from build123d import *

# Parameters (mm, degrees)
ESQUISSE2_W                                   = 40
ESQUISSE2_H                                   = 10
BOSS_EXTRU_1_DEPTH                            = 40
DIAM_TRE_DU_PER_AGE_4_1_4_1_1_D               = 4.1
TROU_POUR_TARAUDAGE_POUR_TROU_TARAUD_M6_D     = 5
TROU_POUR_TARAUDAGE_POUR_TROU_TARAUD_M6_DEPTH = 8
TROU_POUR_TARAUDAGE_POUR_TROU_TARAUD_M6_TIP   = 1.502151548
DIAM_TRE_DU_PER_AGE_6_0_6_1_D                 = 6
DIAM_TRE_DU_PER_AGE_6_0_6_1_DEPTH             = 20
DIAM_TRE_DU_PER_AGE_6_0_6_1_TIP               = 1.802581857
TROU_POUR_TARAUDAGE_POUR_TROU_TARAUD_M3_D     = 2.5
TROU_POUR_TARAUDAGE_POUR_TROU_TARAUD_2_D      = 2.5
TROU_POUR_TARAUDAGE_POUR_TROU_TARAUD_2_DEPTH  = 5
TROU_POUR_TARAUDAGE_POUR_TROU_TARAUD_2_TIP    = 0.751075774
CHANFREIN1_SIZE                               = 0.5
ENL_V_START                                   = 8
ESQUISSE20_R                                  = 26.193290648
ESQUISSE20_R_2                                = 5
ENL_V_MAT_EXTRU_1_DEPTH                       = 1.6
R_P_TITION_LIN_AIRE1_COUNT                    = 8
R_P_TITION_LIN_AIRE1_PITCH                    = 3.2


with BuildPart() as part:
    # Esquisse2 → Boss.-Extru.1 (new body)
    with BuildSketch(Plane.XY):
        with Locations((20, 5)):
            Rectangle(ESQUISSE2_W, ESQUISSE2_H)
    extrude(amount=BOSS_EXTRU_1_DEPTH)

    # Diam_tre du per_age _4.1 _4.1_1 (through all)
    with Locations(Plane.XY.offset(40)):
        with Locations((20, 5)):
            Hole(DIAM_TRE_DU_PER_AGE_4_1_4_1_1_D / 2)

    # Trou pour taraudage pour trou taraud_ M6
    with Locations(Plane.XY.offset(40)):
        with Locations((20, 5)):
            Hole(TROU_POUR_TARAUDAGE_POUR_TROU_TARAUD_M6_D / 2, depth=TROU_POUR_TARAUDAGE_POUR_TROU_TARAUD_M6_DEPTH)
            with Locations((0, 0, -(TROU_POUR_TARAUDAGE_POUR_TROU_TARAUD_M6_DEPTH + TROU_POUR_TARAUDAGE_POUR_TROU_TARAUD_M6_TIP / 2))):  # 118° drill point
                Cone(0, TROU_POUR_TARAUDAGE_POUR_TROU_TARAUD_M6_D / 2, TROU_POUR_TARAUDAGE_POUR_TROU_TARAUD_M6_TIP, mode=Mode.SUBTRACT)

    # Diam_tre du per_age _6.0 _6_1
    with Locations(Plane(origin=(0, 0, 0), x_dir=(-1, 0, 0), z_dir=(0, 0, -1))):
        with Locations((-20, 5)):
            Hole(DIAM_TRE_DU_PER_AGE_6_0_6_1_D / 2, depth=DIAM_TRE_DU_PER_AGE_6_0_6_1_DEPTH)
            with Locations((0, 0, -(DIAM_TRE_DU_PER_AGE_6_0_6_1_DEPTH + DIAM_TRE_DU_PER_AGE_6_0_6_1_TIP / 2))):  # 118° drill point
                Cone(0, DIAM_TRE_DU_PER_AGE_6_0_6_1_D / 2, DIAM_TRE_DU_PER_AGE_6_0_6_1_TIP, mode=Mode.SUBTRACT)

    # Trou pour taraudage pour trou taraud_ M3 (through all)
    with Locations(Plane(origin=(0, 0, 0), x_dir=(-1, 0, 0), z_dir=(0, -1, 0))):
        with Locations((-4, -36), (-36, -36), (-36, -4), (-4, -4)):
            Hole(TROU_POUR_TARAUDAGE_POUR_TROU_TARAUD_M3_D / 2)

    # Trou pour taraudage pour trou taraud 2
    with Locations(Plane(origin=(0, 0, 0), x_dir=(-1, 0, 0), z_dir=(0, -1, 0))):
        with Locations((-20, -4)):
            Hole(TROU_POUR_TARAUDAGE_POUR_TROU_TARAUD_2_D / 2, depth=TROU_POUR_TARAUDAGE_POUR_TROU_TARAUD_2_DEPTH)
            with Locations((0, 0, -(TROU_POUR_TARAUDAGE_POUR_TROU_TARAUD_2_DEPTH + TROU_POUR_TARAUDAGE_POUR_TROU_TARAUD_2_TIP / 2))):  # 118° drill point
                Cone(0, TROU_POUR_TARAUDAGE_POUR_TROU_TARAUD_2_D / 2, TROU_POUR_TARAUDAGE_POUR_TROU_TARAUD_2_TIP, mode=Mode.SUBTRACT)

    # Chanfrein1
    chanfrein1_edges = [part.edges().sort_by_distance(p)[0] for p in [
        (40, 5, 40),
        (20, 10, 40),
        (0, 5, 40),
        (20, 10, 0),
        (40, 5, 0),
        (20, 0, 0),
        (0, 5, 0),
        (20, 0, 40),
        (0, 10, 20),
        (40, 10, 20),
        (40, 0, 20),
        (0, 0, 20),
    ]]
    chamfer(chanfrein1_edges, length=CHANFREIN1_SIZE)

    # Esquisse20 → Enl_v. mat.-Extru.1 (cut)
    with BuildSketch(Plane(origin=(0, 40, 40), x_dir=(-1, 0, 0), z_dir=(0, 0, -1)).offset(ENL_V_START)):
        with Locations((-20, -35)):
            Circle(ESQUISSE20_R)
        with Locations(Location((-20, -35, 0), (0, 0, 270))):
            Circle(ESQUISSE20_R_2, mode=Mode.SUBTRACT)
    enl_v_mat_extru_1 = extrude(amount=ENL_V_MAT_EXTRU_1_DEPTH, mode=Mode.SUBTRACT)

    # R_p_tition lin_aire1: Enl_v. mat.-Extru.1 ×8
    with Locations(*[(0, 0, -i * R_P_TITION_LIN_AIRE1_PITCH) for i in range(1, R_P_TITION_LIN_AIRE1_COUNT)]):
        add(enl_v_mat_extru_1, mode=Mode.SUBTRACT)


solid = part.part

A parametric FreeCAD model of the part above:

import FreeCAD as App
import Part
import Sketcher
from FreeCAD import Vector


def edges_at(feature, points):
    """Names of the edges that pass closest to the given points."""
    edges = feature.Shape.Edges
    near = lambda p: min(range(len(edges)), key=lambda i: edges[i].distToShape(Part.Vertex(*p))[0])
    return sorted({f"Edge{near(p) + 1}" for p in points})


def add_polygon(sketch, points):
    """Adds a closed chain of lines whose ends are joined by coincident constraints."""
    first, n = sketch.GeometryCount, len(points)
    for a, b in zip(points, points[1:] + points[:1]):
        sketch.addGeometry(Part.LineSegment(App.Vector(*a, 0), App.Vector(*b, 0)), False)
    for i in range(n):
        sketch.addConstraint(Sketcher.Constraint("Coincident", first + i, 2, first + (i + 1) % n, 1))

doc = App.newDocument("Part")
body = doc.addObject("PartDesign::Body", "Body")

# Sketch on XY plane
sketch1 = doc.addObject("Sketcher::SketchObject", "Sketch")
body.addObject(sketch1)
sketch1.AttachmentSupport = (doc.XY_Plane, [""])
sketch1.MapMode = "FlatFace"
add_polygon(sketch1, [(0, 10), (0, 0), (40, 0), (40, 10)])  # lines 0-3
sketch1.addConstraint(Sketcher.Constraint("Vertical", 0))
sketch1.addConstraint(Sketcher.Constraint("Horizontal", 1))
sketch1.addConstraint(Sketcher.Constraint("Vertical", 2))
sketch1.addConstraint(Sketcher.Constraint("Horizontal", 3))
sketch1.addConstraint(Sketcher.Constraint("Coincident", 0, 2, -1, 1))
sketch1.addConstraint(Sketcher.Constraint("DistanceX", 1, 1, 1, 2, 40.0))
sketch1.addConstraint(Sketcher.Constraint("DistanceY", 0, 2, 0, 1, 10.0))
pad1 = doc.addObject("PartDesign::Pad", "Pad")
body.addObject(pad1)
pad1.Profile = sketch1
pad1.Length = 40

# Sketch on XY plane
sketch2 = doc.addObject("Sketcher::SketchObject", "Sketch001")
body.addObject(sketch2)
sketch2.AttachmentSupport = (doc.XY_Plane, [""])
sketch2.MapMode = "FlatFace"
sketch2.AttachmentOffset = App.Placement(Vector(0, 0, 40), App.Rotation())
sketch2.addGeometry(Part.Circle(Vector(20, 5, 0), Vector(0, 0, 1), 2.05), False)
sketch2.addConstraint(Sketcher.Constraint("Diameter", 0, 4.1))
sketch2.addConstraint(Sketcher.Constraint("DistanceX", -1, 1, 0, 3, 20.0))
sketch2.addConstraint(Sketcher.Constraint("DistanceY", -1, 1, 0, 3, 5.0))
doc.recompute()
hole = doc.addObject("PartDesign::Hole", "Hole")
body.addObject(hole)
hole.Profile = sketch2
hole.ThreadType = "None"
hole.Diameter = 4.1
hole.DepthType = "ThroughAll"

# Sketch on XY plane
sketch3 = doc.addObject("Sketcher::SketchObject", "Sketch002")
body.addObject(sketch3)
sketch3.AttachmentSupport = (doc.XY_Plane, [""])
sketch3.MapMode = "FlatFace"
sketch3.AttachmentOffset = App.Placement(Vector(0, 0, 40), App.Rotation())
sketch3.addGeometry(Part.Circle(Vector(20, 5, 0), Vector(0, 0, 1), 2.5), False)
sketch3.addConstraint(Sketcher.Constraint("Diameter", 0, 5.0))
sketch3.addConstraint(Sketcher.Constraint("DistanceX", -1, 1, 0, 3, 20.0))
sketch3.addConstraint(Sketcher.Constraint("DistanceY", -1, 1, 0, 3, 5.0))
doc.recompute()
hole2 = doc.addObject("PartDesign::Hole", "Hole001")
body.addObject(hole2)
hole2.Profile = sketch3
hole2.ThreadType = "None"
hole2.Diameter = 5
hole2.DepthType = "Dimension"
hole2.Depth = 8
hole2.DrillPoint = "Angled"
hole2.DrillPointAngle = 118

# Sketch on XY plane
sketch4 = doc.addObject("Sketcher::SketchObject", "Sketch003")
body.addObject(sketch4)
sketch4.AttachmentSupport = (doc.XY_Plane, [""])
sketch4.MapMode = "FlatFace"
sketch4.addGeometry(Part.Circle(Vector(20, 5, 0), Vector(0, 0, 1), 3), False)
sketch4.addConstraint(Sketcher.Constraint("Diameter", 0, 6.0))
sketch4.addConstraint(Sketcher.Constraint("DistanceX", -1, 1, 0, 3, 20.0))
sketch4.addConstraint(Sketcher.Constraint("DistanceY", -1, 1, 0, 3, 5.0))
doc.recompute()
hole3 = doc.addObject("PartDesign::Hole", "Hole002")
body.addObject(hole3)
hole3.Profile = sketch4
hole3.ThreadType = "None"
hole3.Diameter = 6
hole3.DepthType = "Dimension"
hole3.Depth = 20
hole3.DrillPoint = "Angled"
hole3.DrillPointAngle = 118
hole3.Reversed = True

# Sketch on XZ plane
sketch5 = doc.addObject("Sketcher::SketchObject", "Sketch004")
body.addObject(sketch5)
sketch5.AttachmentSupport = (doc.XZ_Plane, [""])
sketch5.MapMode = "FlatFace"
sketch5.addGeometry(Part.Circle(Vector(4, 36, 0), Vector(0, 0, 1), 1.25), False)
sketch5.addGeometry(Part.Circle(Vector(36, 36, 0), Vector(0, 0, 1), 1.25), False)
sketch5.addGeometry(Part.Circle(Vector(36, 4, 0), Vector(0, 0, 1), 1.25), False)
sketch5.addGeometry(Part.Circle(Vector(4, 4, 0), Vector(0, 0, 1), 1.25), False)
sketch5.addConstraint(Sketcher.Constraint("Equal", 0, 1))
sketch5.addConstraint(Sketcher.Constraint("Equal", 1, 2))
sketch5.addConstraint(Sketcher.Constraint("Equal", 2, 3))
sketch5.addConstraint(Sketcher.Constraint("Horizontal", 0, 3, 1, 3))
sketch5.addConstraint(Sketcher.Constraint("Horizontal", 2, 3, 3, 3))
sketch5.addConstraint(Sketcher.Constraint("Vertical", 1, 3, 2, 3))
sketch5.addConstraint(Sketcher.Constraint("Vertical", 0, 3, 3, 3))
sketch5.addConstraint(Sketcher.Constraint("Diameter", 0, 2.5))
sketch5.addConstraint(Sketcher.Constraint("DistanceX", -1, 1, 0, 3, 4.0))
sketch5.addConstraint(Sketcher.Constraint("DistanceY", -1, 1, 0, 3, 36.0))
sketch5.addConstraint(Sketcher.Constraint("DistanceX", -1, 1, 1, 3, 36.0))
sketch5.addConstraint(Sketcher.Constraint("DistanceY", -1, 1, 2, 3, 4.0))
doc.recompute()
hole4 = doc.addObject("PartDesign::Hole", "Hole003")
body.addObject(hole4)
hole4.Profile = sketch5
hole4.ThreadType = "None"
hole4.Diameter = 2.5
hole4.DepthType = "ThroughAll"

# Sketch on XZ plane
sketch6 = doc.addObject("Sketcher::SketchObject", "Sketch005")
body.addObject(sketch6)
sketch6.AttachmentSupport = (doc.XZ_Plane, [""])
sketch6.MapMode = "FlatFace"
sketch6.addGeometry(Part.Circle(Vector(20, 4, 0), Vector(0, 0, 1), 1.25), False)
sketch6.addConstraint(Sketcher.Constraint("Diameter", 0, 2.5))
sketch6.addConstraint(Sketcher.Constraint("DistanceX", -1, 1, 0, 3, 20.0))
sketch6.addConstraint(Sketcher.Constraint("DistanceY", -1, 1, 0, 3, 4.0))
doc.recompute()
hole5 = doc.addObject("PartDesign::Hole", "Hole004")
body.addObject(hole5)
hole5.Profile = sketch6
hole5.ThreadType = "None"
hole5.Diameter = 2.5
hole5.DepthType = "Dimension"
hole5.Depth = 5
hole5.DrillPoint = "Angled"
hole5.DrillPointAngle = 118
doc.recompute()

chamfer = doc.addObject("PartDesign::Chamfer", "Chamfer")
body.addObject(chamfer)
chamfer.Base = (hole5, edges_at(hole5, [
    (40, 5, 40),
    (20, 10, 40),
    (0, 5, 40),
    (20, 10, 0),
    (40, 5, 0),
    (20, 0, 0),
    (0, 5, 0),
    (20, 0, 40),
    (0, 10, 20),
    (40, 10, 20),
    (40, 0, 20),
    (0, 0, 20),
]))
chamfer.Size = 0.5

# Sketch on XY plane
sketch7 = doc.addObject("Sketcher::SketchObject", "Sketch006")
body.addObject(sketch7)
sketch7.AttachmentSupport = (doc.XY_Plane, [""])
sketch7.MapMode = "FlatFace"
sketch7.AttachmentOffset = App.Placement(Vector(0, 0, 32), App.Rotation())
sketch7.addGeometry(Part.Circle(Vector(20, 5, 0), Vector(0, 0, 1), 26.193291), False)
sketch7.addGeometry(Part.Circle(Vector(20, 5, 0), Vector(0, 0, 1), 5), False)
sketch7.addConstraint(Sketcher.Constraint("Coincident", 1, 3, 0, 3))
sketch7.addConstraint(Sketcher.Constraint("Diameter", 1, 10.0))
sketch7.addConstraint(Sketcher.Constraint("DistanceX", -1, 1, 0, 3, 20.0))
sketch7.addConstraint(Sketcher.Constraint("DistanceY", -1, 1, 0, 3, 5.0))
sketch7.addConstraint(Sketcher.Constraint("Diameter", 0, 52.386581))
pocket1 = doc.addObject("PartDesign::Pocket", "Pocket")
body.addObject(pocket1)
pocket1.Profile = sketch7
pocket1.Length = 1.6
doc.recompute()

linearpattern = doc.addObject("PartDesign::LinearPattern", "LinearPattern")
body.addObject(linearpattern)
linearpattern.Originals = [pocket1]
linearpattern.Direction = (doc.Z_Axis, [""])
linearpattern.Mode = "offset"
linearpattern.Offset = 3.2
linearpattern.Occurrences = 8
linearpattern.Reversed = True
body.Tip = linearpattern

doc.recompute()
